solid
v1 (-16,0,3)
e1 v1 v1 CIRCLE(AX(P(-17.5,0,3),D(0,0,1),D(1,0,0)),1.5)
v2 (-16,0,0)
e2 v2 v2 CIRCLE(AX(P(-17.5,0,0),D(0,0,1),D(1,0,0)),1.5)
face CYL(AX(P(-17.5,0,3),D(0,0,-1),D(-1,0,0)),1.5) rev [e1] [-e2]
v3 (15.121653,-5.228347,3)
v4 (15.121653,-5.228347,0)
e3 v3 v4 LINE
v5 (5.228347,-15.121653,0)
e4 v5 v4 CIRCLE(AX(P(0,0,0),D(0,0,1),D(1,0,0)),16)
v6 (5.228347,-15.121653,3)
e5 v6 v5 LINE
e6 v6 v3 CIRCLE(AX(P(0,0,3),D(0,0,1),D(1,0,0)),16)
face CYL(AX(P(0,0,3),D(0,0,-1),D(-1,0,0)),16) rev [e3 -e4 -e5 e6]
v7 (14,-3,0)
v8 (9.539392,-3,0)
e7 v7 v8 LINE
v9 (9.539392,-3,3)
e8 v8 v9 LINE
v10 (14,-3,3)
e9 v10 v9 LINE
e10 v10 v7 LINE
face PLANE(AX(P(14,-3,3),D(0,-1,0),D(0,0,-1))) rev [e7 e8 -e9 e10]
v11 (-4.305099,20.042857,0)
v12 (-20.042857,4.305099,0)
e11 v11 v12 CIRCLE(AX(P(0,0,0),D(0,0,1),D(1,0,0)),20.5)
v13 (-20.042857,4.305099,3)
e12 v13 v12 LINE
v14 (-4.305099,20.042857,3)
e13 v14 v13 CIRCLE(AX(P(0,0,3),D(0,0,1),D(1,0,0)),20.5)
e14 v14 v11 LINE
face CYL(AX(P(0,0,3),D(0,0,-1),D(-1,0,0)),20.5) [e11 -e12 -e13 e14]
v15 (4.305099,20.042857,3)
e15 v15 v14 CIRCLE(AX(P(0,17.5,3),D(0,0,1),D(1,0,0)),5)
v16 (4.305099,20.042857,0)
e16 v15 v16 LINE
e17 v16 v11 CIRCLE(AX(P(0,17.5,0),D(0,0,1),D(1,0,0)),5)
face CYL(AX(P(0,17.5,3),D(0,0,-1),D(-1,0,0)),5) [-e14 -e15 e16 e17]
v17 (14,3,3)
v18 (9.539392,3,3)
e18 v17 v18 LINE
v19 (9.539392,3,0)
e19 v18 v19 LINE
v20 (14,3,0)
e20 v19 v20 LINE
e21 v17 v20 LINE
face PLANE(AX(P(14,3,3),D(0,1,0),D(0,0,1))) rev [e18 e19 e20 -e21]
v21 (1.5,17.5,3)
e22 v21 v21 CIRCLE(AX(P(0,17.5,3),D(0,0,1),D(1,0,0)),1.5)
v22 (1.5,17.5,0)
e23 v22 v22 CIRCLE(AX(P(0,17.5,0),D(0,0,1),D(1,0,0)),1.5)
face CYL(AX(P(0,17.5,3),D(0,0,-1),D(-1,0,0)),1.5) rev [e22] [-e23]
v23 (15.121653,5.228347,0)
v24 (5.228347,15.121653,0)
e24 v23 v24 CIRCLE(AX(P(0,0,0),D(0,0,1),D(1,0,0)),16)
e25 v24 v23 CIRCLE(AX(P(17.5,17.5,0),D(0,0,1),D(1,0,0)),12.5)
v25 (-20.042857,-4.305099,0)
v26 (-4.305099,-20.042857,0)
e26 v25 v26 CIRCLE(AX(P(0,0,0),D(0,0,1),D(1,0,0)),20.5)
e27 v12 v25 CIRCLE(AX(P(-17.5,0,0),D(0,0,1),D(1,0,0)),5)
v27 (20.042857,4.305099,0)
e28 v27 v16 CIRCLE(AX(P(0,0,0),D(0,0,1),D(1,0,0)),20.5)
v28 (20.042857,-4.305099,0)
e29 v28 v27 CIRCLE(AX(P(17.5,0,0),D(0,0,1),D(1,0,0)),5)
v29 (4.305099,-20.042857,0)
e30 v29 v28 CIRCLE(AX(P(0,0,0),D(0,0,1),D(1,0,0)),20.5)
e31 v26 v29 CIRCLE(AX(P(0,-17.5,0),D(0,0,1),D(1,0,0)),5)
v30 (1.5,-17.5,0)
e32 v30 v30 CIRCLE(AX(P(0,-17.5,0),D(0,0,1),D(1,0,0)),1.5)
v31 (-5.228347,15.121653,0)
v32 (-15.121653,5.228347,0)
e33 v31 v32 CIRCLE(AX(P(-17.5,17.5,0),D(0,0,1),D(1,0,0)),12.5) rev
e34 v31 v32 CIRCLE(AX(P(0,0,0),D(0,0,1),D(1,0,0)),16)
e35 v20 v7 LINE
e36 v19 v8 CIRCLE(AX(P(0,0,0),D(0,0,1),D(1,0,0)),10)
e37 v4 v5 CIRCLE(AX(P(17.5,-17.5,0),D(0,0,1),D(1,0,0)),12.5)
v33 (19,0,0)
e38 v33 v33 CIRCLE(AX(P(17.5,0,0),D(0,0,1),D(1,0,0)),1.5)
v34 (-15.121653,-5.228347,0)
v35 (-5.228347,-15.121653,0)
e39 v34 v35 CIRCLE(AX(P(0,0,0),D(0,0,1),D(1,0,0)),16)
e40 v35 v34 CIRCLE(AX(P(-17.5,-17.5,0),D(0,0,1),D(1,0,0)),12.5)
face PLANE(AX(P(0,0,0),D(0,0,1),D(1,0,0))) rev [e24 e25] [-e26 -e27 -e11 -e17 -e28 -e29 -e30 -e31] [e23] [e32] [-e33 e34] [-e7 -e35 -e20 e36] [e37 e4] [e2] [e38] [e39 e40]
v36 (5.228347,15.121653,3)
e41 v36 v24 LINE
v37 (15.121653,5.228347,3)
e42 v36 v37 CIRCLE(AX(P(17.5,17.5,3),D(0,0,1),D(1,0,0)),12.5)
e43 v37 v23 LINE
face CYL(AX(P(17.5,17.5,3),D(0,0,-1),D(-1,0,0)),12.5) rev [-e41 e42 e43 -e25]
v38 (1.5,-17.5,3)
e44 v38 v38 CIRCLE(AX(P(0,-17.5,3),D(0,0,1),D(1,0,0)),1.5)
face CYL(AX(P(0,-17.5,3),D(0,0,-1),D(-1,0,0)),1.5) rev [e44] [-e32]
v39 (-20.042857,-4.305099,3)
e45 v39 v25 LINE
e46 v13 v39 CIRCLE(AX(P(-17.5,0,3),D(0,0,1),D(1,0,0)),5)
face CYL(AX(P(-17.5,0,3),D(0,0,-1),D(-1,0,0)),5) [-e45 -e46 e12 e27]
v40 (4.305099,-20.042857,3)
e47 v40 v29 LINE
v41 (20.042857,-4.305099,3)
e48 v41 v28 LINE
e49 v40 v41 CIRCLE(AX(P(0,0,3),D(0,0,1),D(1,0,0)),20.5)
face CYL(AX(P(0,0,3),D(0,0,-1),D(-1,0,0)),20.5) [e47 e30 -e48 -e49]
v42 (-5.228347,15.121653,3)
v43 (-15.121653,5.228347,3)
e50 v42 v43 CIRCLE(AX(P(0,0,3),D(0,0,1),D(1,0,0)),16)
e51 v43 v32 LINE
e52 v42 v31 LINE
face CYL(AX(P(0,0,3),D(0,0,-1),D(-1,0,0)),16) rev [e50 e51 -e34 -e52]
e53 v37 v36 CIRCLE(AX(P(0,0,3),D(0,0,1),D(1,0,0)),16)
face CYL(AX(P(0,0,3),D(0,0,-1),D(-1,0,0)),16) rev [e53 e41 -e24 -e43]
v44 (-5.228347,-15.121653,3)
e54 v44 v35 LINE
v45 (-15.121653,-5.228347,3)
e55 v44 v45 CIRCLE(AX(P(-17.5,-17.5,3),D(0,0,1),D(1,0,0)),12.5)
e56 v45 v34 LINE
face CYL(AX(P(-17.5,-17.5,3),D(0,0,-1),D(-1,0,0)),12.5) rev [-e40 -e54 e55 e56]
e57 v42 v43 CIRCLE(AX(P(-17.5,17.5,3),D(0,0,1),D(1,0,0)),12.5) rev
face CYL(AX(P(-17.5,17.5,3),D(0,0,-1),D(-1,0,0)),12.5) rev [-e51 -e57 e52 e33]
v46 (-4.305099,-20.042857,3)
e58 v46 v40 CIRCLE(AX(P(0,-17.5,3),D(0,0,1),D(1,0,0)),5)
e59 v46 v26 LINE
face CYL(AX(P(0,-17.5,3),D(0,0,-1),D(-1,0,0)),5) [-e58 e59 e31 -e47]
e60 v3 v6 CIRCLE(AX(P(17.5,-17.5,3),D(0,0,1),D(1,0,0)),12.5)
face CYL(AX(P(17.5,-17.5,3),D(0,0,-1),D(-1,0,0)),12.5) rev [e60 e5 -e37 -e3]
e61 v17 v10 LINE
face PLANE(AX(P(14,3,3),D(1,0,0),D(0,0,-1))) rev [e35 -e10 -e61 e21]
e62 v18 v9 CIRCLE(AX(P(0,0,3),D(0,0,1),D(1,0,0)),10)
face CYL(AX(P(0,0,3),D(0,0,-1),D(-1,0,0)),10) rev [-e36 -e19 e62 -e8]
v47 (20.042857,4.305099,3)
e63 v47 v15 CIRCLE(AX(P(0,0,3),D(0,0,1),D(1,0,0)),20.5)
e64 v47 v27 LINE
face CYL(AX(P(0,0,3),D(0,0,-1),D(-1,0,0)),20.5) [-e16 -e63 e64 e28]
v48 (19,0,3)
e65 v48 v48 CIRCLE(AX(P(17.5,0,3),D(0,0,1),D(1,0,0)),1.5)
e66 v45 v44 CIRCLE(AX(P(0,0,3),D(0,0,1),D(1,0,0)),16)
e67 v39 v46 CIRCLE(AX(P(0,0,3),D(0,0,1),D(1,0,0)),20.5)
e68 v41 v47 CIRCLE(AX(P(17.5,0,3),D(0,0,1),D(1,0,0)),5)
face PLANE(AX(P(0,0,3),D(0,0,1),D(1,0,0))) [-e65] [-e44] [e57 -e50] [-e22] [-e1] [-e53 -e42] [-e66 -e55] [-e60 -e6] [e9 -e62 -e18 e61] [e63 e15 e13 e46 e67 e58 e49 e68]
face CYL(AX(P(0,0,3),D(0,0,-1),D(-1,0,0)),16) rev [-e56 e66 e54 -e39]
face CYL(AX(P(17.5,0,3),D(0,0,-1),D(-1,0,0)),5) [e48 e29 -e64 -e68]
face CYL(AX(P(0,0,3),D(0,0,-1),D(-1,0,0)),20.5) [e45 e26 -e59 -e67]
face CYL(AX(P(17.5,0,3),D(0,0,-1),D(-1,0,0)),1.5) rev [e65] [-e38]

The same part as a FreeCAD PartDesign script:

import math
import FreeCAD as App
import Part
import Sketcher

V = App.Vector
Q = App.Units.Quantity

doc = App.newDocument("Part")
body = doc.addObject("PartDesign::Body", "Body")

# Sketch on XY plane
sketch1 = doc.addObject("Sketcher::SketchObject", "Sketch")
body.addObject(sketch1)
sketch1.AttachmentSupport = (doc.XY_Plane, [""])
sketch1.MapMode = "FlatFace"
sketch1.addGeometry(Part.ArcOfCircle(Part.Circle(V(0, -17.5, 0), V(0, 0, 1), 5), math.radians(-149), math.radians(-31)), False)
sketch1.addGeometry(Part.ArcOfCircle(Part.Circle(V(0, 0, 0), V(0, 0, 1), 20.5), math.radians(-78), math.radians(-12)), False)
sketch1.addGeometry(Part.ArcOfCircle(Part.Circle(V(17.5, 0, 0), V(0, 0, 1), 5), math.radians(-59), math.radians(59)), False)
sketch1.addGeometry(Part.ArcOfCircle(Part.Circle(V(0, 0, 0), V(0, 0, 1), 20.5), math.radians(12), math.radians(78)), False)
sketch1.addGeometry(Part.ArcOfCircle(Part.Circle(V(0, 17.5, 0), V(0, 0, 1), 5), math.radians(31), math.radians(149)), False)
sketch1.addGeometry(Part.ArcOfCircle(Part.Circle(V(0, 0, 0), V(0, 0, 1), 20.5), math.radians(102), math.radians(168)), False)
sketch1.addGeometry(Part.ArcOfCircle(Part.Circle(V(-17.5, 0, 0), V(0, 0, 1), 5), math.radians(121), math.radians(239)), False)
sketch1.addGeometry(Part.ArcOfCircle(Part.Circle(V(0, 0, 0), V(0, 0, 1), 20.5), math.radians(-168), math.radians(-102)), False)
sketch1.addGeometry(Part.ArcOfCircle(Part.Circle(V(0, 0, 0), V(0, 0, 1), 16), math.radians(-161), math.radians(-109)), False)
sketch1.addGeometry(Part.ArcOfCircle(Part.Circle(V(-17.5, -17.5, 0), V(0, 0, 1), 12.5), math.radians(11), math.radians(79)), False)
sketch1.addGeometry(Part.Circle(V(0, -17.5, 0), V(0, 0, 1), 1.5), False)
sketch1.addGeometry(Part.ArcOfCircle(Part.Circle(V(17.5, -17.5, 0), V(0, 0, 1), 12.5), math.radians(101), math.radians(169)), False)
sketch1.addGeometry(Part.ArcOfCircle(Part.Circle(V(0, 0, 0), V(0, 0, 1), 16), math.radians(-71), math.radians(-19)), False)
sketch1.addGeometry(Part.Circle(V(-17.5, 0, 0), V(0, 0, 1), 1.5), False)
sketch1.addGeometry(Part.ArcOfCircle(Part.Circle(V(-17.5, 17.5, 0), V(0, 0, 1), 12.5), math.radians(-79), math.radians(-11)), False)
sketch1.addGeometry(Part.ArcOfCircle(Part.Circle(V(0, 0, 0), V(0, 0, 1), 16), math.radians(109), math.radians(161)), False)
sketch1.addGeometry(Part.Circle(V(0, 0, 0), V(0, 0, 1), 10), False)
sketch1.addGeometry(Part.Circle(V(17.5, 0, 0), V(0, 0, 1), 1.5), False)
sketch1.addGeometry(Part.Circle(V(0, 17.5, 0), V(0, 0, 1), 1.5), False)
sketch1.addGeometry(Part.ArcOfCircle(Part.Circle(V(17.5, 17.5, 0), V(0, 0, 1), 12.5), math.radians(-169), math.radians(-101)), False)
sketch1.addGeometry(Part.ArcOfCircle(Part.Circle(V(0, 0, 0), V(0, 0, 1), 16), math.radians(19), math.radians(71)), False)
sketch1.addConstraint(Sketcher.Constraint("Coincident", 0, 2, 1, 1))
sketch1.addConstraint(Sketcher.Constraint("Coincident", 1, 2, 2, 1))
sketch1.addConstraint(Sketcher.Constraint("Coincident", 2, 2, 3, 1))
sketch1.addConstraint(Sketcher.Constraint("Coincident", 3, 2, 4, 1))
sketch1.addConstraint(Sketcher.Constraint("Coincident", 4, 2, 5, 1))
sketch1.addConstraint(Sketcher.Constraint("Coincident", 5, 2, 6, 1))
sketch1.addConstraint(Sketcher.Constraint("Coincident", 6, 2, 7, 1))
sketch1.addConstraint(Sketcher.Constraint("Coincident", 7, 2, 0, 1))
sketch1.addConstraint(Sketcher.Constraint("Coincident", 8, 1, 9, 2))
sketch1.addConstraint(Sketcher.Constraint("Coincident", 9, 1, 8, 2))
sketch1.addConstraint(Sketcher.Constraint("Coincident", 11, 1, 12, 2))
sketch1.addConstraint(Sketcher.Constraint("Coincident", 12, 1, 11, 2))
sketch1.addConstraint(Sketcher.Constraint("Coincident", 14, 1, 15, 2))
sketch1.addConstraint(Sketcher.Constraint("Coincident", 15, 1, 14, 2))
sketch1.addConstraint(Sketcher.Constraint("Coincident", 19, 1, 20, 2))
sketch1.addConstraint(Sketcher.Constraint("Coincident", 20, 1, 19, 2))
sketch1.addConstraint(Sketcher.Constraint("Coincident", 1, 3, -1, 1))
sketch1.addConstraint(Sketcher.Constraint("Coincident", 3, 3, -1, 1))
sketch1.addConstraint(Sketcher.Constraint("Coincident", 5, 3, -1, 1))
sketch1.addConstraint(Sketcher.Constraint("Coincident", 7, 3, -1, 1))
sketch1.addConstraint(Sketcher.Constraint("Coincident", 8, 3, -1, 1))
sketch1.addConstraint(Sketcher.Constraint("Coincident", 12, 3, -1, 1))
sketch1.addConstraint(Sketcher.Constraint("Coincident", 15, 3, -1, 1))
sketch1.addConstraint(Sketcher.Constraint("Coincident", 16, 3, -1, 1))
sketch1.addConstraint(Sketcher.Constraint("Coincident", 20, 3, -1, 1))
sketch1.addConstraint(Sketcher.Constraint("Coincident", 10, 3, 0, 3))
sketch1.addConstraint(Sketcher.Constraint("Coincident", 13, 3, 6, 3))
sketch1.addConstraint(Sketcher.Constraint("Coincident", 17, 3, 2, 3))
sketch1.addConstraint(Sketcher.Constraint("Coincident", 18, 3, 4, 3))
sketch1.addConstraint(Sketcher.Constraint("Equal", 0, 2))
sketch1.addConstraint(Sketcher.Constraint("Equal", 1, 3))
sketch1.addConstraint(Sketcher.Constraint("Equal", 2, 4))
sketch1.addConstraint(Sketcher.Constraint("Equal", 3, 5))
sketch1.addConstraint(Sketcher.Constraint("Equal", 4, 6))
sketch1.addConstraint(Sketcher.Constraint("Equal", 5, 7))
sketch1.addConstraint(Sketcher.Constraint("Equal", 9, 11))
sketch1.addConstraint(Sketcher.Constraint("Equal", 8, 12))
sketch1.addConstraint(Sketcher.Constraint("Equal", 10, 13))
sketch1.addConstraint(Sketcher.Constraint("Equal", 11, 14))
sketch1.addConstraint(Sketcher.Constraint("Equal", 12, 15))
sketch1.addConstraint(Sketcher.Constraint("Equal", 13, 17))
sketch1.addConstraint(Sketcher.Constraint("Equal", 17, 18))
sketch1.addConstraint(Sketcher.Constraint("Equal", 14, 19))
sketch1.addConstraint(Sketcher.Constraint("Equal", 15, 20))
sketch1.addConstraint(Sketcher.Constraint("Symmetric", 0, 3, 4, 3, -1, 1))
sketch1.addConstraint(Sketcher.Constraint("Symmetric", 2, 3, 6, 3, -1, 1))
sketch1.addConstraint(Sketcher.Constraint("Symmetric", 11, 3, 14, 3, -1, 1))
sketch1.addConstraint(Sketcher.Constraint("Symmetric", 9, 3, 19, 3, -1, 1))
sketch1.addConstraint(Sketcher.Constraint("Symmetric", 9, 3, 11, 3, -2))
sketch1.addConstraint(Sketcher.Constraint("PointOnObject", 0, 3, -2))
sketch1.addConstraint(Sketcher.Constraint("PointOnObject", 2, 3, -1))
sketch1.addConstraint(Sketcher.Constraint("Horizontal", 0, 3, 9, 3))
sketch1.addConstraint(Sketcher.Constraint("Vertical", 6, 3, 9, 3))
sketch1.addConstraint(Sketcher.Constraint("Diameter", 10, Q("3 mm")))
sketch1.addConstraint(Sketcher.Constraint("Diameter", 16, Q("20 mm")))
sketch1.addConstraint(Sketcher.Constraint("Radius", 0, Q("5 mm")))
sketch1.addConstraint(Sketcher.Constraint("Radius", 8, Q("16 mm")))
sketch1.addConstraint(Sketcher.Constraint("Radius", 1, Q("20.5 mm")))
sketch1.addConstraint(Sketcher.Constraint("Radius", 9, Q("12.5 mm")))
sketch1.addConstraint(Sketcher.Constraint("DistanceY", 0, 3, 4, 3, Q("35 mm")))
sketch1.addConstraint(Sketcher.Constraint("DistanceX", -1, 1, 2, 3, Q("17.5 mm")))
pad1 = doc.addObject("PartDesign::Pad", "Pad")
body.addObject(pad1)
pad1.Profile = sketch1
pad1.Length = 3

# Sketch on XY plane
sketch2 = doc.addObject("Sketcher::SketchObject", "Sketch001")
body.addObject(sketch2)
sketch2.AttachmentSupport = (doc.XY_Plane, [""])
sketch2.MapMode = "FlatFace"
sketch2.addGeometry(Part.LineSegment(V(14, 3, 0), V(14, -3, 0)), False)
sketch2.addGeometry(Part.LineSegment(V(14, -3, 0), V(6, -3, 0)), False)
sketch2.addGeometry(Part.LineSegment(V(6, -3, 0), V(6, 3, 0)), False)
sketch2.addGeometry(Part.LineSegment(V(6, 3, 0), V(14, 3, 0)), False)
sketch2.addConstraint(Sketcher.Constraint("Coincident", 0, 2, 1, 1))
sketch2.addConstraint(Sketcher.Constraint("Coincident", 1, 2, 2, 1))
sketch2.addConstraint(Sketcher.Constraint("Coincident", 2, 2, 3, 1))
sketch2.addConstraint(Sketcher.Constraint("Coincident", 3, 2, 0, 1))
sketch2.addConstraint(Sketcher.Constraint("Vertical", 0))
sketch2.addConstraint(Sketcher.Constraint("Horizontal", 1))
sketch2.addConstraint(Sketcher.Constraint("Vertical", 2))
sketch2.addConstraint(Sketcher.Constraint("Horizontal", 3))
sketch2.addConstraint(Sketcher.Constraint("DistanceX", 1, 2, 1, 1, Q("8 mm")))
sketch2.addConstraint(Sketcher.Constraint("DistanceY", 0, 2, 0, 1, Q("6 mm")))
sketch2.addConstraint(Sketcher.Constraint("DistanceX", -1, 1, 0, 2, Q("14 mm")))
sketch2.addConstraint(Sketcher.Constraint("DistanceY", 0, 2, -1, 1, Q("3 mm")))
pocket1 = doc.addObject("PartDesign::Pocket", "Pocket")
body.addObject(pocket1)
pocket1.Profile = sketch2
pocket1.Type = "ThroughAll"
pocket1.Reversed = True

doc.recompute()
